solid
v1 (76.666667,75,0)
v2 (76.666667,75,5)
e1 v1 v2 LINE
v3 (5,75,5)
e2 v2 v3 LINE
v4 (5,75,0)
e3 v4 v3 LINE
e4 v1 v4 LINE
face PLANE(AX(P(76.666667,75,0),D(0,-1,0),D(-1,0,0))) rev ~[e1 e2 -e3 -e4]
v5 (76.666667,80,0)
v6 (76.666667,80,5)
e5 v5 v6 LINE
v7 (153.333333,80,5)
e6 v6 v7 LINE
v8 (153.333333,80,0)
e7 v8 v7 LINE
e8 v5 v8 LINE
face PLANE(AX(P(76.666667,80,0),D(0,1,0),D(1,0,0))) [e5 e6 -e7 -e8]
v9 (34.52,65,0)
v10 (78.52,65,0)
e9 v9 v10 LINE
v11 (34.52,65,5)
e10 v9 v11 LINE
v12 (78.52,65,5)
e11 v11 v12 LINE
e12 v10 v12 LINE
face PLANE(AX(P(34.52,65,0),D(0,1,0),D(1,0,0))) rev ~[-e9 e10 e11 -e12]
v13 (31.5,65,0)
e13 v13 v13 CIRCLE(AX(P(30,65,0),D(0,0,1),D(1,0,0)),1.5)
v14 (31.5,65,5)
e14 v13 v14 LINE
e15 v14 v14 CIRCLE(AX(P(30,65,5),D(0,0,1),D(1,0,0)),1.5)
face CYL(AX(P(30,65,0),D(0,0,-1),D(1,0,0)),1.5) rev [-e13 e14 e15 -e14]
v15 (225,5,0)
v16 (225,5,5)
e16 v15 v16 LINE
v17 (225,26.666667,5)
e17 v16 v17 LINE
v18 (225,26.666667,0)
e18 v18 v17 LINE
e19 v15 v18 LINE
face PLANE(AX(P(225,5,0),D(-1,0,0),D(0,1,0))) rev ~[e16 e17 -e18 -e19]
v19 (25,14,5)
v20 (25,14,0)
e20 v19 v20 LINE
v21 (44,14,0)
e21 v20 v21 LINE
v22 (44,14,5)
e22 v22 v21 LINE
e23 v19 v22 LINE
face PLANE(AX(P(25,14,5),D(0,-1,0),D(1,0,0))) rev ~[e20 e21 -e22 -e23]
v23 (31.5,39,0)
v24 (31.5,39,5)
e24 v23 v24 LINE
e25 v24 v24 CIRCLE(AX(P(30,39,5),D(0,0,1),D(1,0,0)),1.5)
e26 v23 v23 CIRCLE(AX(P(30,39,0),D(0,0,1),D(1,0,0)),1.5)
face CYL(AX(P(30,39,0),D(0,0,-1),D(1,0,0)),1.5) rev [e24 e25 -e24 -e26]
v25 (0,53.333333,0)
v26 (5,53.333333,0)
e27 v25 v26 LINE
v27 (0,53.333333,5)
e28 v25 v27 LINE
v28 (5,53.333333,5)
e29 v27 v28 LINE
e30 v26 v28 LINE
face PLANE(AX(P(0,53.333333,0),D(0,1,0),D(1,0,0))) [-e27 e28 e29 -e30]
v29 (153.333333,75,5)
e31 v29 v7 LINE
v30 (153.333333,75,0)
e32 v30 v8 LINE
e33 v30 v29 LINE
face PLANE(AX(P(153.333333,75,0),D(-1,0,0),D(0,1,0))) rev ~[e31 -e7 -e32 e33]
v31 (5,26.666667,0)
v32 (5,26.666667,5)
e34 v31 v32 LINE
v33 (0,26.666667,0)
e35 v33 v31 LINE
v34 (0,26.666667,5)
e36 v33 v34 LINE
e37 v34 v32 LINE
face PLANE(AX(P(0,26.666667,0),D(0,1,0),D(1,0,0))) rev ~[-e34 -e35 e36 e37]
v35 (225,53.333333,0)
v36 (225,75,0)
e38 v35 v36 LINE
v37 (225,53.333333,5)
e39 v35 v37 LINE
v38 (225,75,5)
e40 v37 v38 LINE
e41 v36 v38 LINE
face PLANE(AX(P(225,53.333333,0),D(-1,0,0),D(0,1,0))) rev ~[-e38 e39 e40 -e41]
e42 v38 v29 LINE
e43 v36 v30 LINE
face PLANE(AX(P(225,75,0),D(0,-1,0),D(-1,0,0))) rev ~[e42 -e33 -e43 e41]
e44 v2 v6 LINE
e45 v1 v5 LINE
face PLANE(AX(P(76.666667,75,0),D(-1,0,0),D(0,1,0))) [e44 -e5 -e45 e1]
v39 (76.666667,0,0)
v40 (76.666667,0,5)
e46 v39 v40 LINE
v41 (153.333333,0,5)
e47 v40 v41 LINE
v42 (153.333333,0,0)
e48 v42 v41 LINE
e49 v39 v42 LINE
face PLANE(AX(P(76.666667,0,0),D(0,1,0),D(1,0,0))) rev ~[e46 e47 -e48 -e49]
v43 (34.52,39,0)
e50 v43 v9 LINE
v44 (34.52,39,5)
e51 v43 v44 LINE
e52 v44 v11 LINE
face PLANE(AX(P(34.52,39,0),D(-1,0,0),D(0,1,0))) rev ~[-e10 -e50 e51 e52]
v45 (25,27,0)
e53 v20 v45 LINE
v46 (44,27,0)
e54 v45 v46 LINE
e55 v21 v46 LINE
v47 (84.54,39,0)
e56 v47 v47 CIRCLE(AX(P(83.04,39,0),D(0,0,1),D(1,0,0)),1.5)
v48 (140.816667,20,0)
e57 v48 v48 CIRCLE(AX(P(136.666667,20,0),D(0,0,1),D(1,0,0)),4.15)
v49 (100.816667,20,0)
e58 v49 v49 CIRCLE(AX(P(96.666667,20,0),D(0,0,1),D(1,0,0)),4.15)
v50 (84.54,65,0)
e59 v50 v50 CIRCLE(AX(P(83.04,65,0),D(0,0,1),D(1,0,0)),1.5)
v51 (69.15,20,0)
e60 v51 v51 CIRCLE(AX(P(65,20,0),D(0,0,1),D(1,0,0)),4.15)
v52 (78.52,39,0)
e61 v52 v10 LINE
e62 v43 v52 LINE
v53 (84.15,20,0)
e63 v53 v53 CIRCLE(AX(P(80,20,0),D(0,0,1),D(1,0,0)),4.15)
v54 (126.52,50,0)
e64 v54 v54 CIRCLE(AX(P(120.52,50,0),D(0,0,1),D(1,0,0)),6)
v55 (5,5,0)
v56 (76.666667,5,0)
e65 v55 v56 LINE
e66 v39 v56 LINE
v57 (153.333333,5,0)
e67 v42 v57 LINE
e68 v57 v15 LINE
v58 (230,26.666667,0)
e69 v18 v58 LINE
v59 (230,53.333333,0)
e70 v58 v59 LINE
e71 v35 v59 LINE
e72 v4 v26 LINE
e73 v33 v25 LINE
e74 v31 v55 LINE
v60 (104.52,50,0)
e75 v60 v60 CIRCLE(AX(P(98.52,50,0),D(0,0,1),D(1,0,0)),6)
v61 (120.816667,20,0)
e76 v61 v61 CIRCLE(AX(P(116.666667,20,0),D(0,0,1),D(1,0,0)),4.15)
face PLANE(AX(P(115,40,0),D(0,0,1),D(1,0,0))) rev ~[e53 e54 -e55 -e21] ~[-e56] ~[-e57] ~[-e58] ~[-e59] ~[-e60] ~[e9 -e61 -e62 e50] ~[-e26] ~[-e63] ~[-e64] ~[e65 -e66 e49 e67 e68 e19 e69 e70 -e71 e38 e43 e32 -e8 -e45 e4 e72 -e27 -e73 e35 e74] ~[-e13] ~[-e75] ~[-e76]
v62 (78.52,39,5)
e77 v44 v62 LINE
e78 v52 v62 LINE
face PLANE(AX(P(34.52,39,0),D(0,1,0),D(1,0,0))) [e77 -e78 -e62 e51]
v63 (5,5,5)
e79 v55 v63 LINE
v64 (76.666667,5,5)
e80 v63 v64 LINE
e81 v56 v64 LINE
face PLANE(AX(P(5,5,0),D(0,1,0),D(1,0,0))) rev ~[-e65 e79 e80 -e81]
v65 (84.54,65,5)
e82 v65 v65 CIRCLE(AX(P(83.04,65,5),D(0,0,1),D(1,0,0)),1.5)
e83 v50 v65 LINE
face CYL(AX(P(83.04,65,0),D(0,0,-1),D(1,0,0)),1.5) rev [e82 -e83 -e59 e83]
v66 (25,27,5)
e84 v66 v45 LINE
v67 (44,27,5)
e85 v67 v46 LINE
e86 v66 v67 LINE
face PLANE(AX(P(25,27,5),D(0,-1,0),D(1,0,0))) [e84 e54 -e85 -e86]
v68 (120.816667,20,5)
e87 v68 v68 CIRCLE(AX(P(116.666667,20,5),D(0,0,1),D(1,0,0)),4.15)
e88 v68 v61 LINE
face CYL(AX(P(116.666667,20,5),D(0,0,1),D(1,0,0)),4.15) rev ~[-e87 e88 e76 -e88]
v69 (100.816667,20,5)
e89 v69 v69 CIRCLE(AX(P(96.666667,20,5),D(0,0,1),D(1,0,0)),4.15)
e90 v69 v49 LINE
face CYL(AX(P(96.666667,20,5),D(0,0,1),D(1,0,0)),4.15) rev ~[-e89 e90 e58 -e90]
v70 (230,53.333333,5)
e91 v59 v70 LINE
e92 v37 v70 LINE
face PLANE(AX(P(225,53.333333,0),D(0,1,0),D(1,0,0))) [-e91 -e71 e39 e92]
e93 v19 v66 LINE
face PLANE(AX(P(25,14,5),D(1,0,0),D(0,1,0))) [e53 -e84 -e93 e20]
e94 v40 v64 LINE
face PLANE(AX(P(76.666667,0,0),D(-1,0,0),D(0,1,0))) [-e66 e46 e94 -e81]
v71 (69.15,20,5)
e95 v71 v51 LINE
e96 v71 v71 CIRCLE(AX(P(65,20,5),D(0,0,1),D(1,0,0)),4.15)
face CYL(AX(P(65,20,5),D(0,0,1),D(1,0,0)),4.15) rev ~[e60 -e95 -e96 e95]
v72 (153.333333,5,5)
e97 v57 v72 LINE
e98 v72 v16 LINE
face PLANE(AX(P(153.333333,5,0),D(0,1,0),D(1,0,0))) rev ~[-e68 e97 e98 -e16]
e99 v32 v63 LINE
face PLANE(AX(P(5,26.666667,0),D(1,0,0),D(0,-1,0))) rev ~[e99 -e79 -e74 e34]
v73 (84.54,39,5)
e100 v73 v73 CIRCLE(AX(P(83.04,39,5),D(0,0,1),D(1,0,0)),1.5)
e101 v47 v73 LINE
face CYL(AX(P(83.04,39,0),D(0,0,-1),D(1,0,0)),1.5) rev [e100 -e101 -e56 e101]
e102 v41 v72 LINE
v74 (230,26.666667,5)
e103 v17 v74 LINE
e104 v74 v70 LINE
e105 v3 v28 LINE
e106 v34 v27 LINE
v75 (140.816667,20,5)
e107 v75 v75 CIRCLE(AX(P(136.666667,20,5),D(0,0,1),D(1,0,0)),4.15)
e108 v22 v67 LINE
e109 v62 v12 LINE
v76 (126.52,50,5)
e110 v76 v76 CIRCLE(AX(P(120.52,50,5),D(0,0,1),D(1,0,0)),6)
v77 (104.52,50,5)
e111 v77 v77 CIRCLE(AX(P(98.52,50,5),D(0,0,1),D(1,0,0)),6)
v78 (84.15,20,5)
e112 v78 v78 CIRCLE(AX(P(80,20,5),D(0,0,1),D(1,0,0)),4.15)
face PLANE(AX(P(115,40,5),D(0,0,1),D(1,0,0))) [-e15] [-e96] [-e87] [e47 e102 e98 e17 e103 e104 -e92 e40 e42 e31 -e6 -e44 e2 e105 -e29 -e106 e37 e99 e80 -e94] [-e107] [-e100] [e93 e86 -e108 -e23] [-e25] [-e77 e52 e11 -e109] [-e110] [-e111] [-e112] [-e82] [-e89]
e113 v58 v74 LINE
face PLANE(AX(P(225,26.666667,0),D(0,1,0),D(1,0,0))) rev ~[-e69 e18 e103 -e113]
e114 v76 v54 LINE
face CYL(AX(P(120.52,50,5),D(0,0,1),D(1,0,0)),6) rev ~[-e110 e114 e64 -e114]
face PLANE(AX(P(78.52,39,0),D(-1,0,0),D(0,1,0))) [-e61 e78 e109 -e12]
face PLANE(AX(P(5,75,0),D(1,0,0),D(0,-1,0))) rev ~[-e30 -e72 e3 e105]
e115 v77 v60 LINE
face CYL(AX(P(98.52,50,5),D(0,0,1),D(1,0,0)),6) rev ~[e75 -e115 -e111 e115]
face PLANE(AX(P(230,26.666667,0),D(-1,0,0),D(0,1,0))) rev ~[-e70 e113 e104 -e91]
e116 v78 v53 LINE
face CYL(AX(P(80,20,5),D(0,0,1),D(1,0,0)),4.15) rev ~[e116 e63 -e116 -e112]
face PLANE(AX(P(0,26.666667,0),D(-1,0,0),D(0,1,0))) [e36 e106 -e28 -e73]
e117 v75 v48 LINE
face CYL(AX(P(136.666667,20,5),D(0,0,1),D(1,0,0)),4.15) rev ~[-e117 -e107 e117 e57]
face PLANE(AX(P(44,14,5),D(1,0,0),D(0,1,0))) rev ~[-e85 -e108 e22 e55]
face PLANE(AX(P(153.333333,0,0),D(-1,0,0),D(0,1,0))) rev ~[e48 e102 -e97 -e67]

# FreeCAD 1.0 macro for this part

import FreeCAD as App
import Part
import Sketcher
from FreeCAD import Vector


def add_polygon(sketch, points):
    """Adds a closed chain of lines whose ends are joined by coincident constraints."""
    first, n = sketch.GeometryCount, len(points)
    for a, b in zip(points, points[1:] + points[:1]):
        sketch.addGeometry(Part.LineSegment(App.Vector(*a, 0), App.Vector(*b, 0)), False)
    for i in range(n):
        sketch.addConstraint(Sketcher.Constraint("Coincident", first + i, 2, first + (i + 1) % n, 1))

doc = App.newDocument("Part")
body = doc.addObject("PartDesign::Body", "Body")

# Sketch on XY plane
sketch1 = doc.addObject("Sketcher::SketchObject", "Sketch")
body.addObject(sketch1)
sketch1.AttachmentSupport = (doc.XY_Plane, [""])
sketch1.MapMode = "FlatFace"
add_polygon(sketch1, [(5, 5), (76.7, 5), (76.7, 0), (153.3, 0), (153.3, 5), (225, 5), (225, 26.7), (230, 26.7), (230, 53.3), (225, 53.3), (225, 75), (153.3, 75), (153.3, 80), (76.7, 80), (76.7, 75), (5, 75), (5, 53.3), (0, 53.3), (0, 26.7), (5, 26.7)])  # lines 0-19
sketch1.addGeometry(Part.Circle(Vector(30, 39, 0), Vector(0, 0, 1), 1.5), False)  # 20
sketch1.addGeometry(Part.Circle(Vector(83, 39, 0), Vector(0, 0, 1), 1.5), False)  # 21
sketch1.addGeometry(Part.Circle(Vector(30, 65, 0), Vector(0, 0, 1), 1.5), False)  # 22
add_polygon(sketch1, [(78.5, 39), (34.5, 39), (34.5, 65), (78.5, 65)])  # lines 23-26
sketch1.addGeometry(Part.Circle(Vector(83, 65, 0), Vector(0, 0, 1), 1.5), False)  # 27
sketch1.addConstraint([
    Sketcher.Constraint("Horizontal", 0),
    Sketcher.Constraint("Vertical", 1),
    Sketcher.Constraint("Horizontal", 2),
    Sketcher.Constraint("Vertical", 3),
    Sketcher.Constraint("Horizontal", 4),
    Sketcher.Constraint("Vertical", 5),
    Sketcher.Constraint("Horizontal", 6),
    Sketcher.Constraint("Vertical", 7),
    Sketcher.Constraint("Horizontal", 8),
    Sketcher.Constraint("Vertical", 9),
    Sketcher.Constraint("Horizontal", 10),
    Sketcher.Constraint("Vertical", 11),
    Sketcher.Constraint("Horizontal", 12),
    Sketcher.Constraint("Vertical", 13),
    Sketcher.Constraint("Horizontal", 14),
    Sketcher.Constraint("Vertical", 15),
    Sketcher.Constraint("Horizontal", 16),
    Sketcher.Constraint("Vertical", 17),
    Sketcher.Constraint("Horizontal", 18),
    Sketcher.Constraint("Vertical", 19),
    Sketcher.Constraint("Horizontal", 23),
    Sketcher.Constraint("Vertical", 24),
    Sketcher.Constraint("Horizontal", 25),
    Sketcher.Constraint("Vertical", 26),
    Sketcher.Constraint("Equal", 20, 21),
    Sketcher.Constraint("Equal", 21, 22),
    Sketcher.Constraint("Equal", 22, 27),
    Sketcher.Constraint("PointOnObject", 1, 2, -1),
    Sketcher.Constraint("PointOnObject", 16, 2, -2),
    Sketcher.Constraint("Horizontal", 20, 3, 21, 3),
    Sketcher.Constraint("Horizontal", 22, 3, 27, 3),
    Sketcher.Constraint("Horizontal", 0, 2, 3, 2),
    Sketcher.Constraint("Horizontal", 10, 2, 13, 2),
    Sketcher.Constraint("Horizontal", 8, 2, 15, 2),
    Sketcher.Constraint("Horizontal", 6, 2, 17, 2),
    Sketcher.Constraint("Horizontal", 21, 3, 23, 2),
    Sketcher.Constraint("Horizontal", 27, 3, 24, 2),
    Sketcher.Constraint("Vertical", 20, 3, 22, 3),
    Sketcher.Constraint("Vertical", 21, 3, 27, 3),
    Sketcher.Constraint("Vertical", 5, 2, 8, 2),
    Sketcher.Constraint("Vertical", 3, 2, 10, 2),
    Sketcher.Constraint("Vertical", 1, 2, 12, 2),
    Sketcher.Constraint("Vertical", 15, 2, 18, 2),
    Sketcher.Constraint("Equal", 0, 4),
    Sketcher.Constraint("Equal", 8, 16),
    Sketcher.Constraint("Equal", 18, 1),
    Sketcher.Constraint("Equal", 5, 9),
    Sketcher.Constraint("Equal", 3, 11),
    Sketcher.Constraint("Diameter", 20, 3.0),
    Sketcher.Constraint("DistanceX", 6, 1, 6, 2, 5.0),
    Sketcher.Constraint("DistanceX", 23, 2, 23, 1, 44.0),
    Sketcher.Constraint("DistanceY", 24, 1, 24, 2, 26.0),
    Sketcher.Constraint("DistanceX", -1, 1, 20, 3, 30.0),
    Sketcher.Constraint("DistanceY", -1, 1, 20, 3, 39.0),
    Sketcher.Constraint("DistanceX", -1, 1, 4, 2, 225.0),
    Sketcher.Constraint("DistanceY", -1, 1, 9, 2, 75.0),
    Sketcher.Constraint("DistanceX", -1, 1, 21, 3, 83.04),
    Sketcher.Constraint("DistanceX", -1, 1, 23, 2, 34.52),
    Sketcher.Constraint("DistanceX", 0, 1, 0, 2, 71.666667),
    Sketcher.Constraint("DistanceY", 5, 1, 5, 2, 21.666667),
])
pad1 = doc.addObject("PartDesign::Pad", "Pad")
body.addObject(pad1)
pad1.Profile = sketch1
pad1.Length = 5

# Sketch on XY plane
sketch2 = doc.addObject("Sketcher::SketchObject", "Sketch001")
body.addObject(sketch2)
sketch2.AttachmentSupport = (doc.XY_Plane, [""])
sketch2.MapMode = "FlatFace"
sketch2.AttachmentOffset = App.Placement(Vector(0, 0, 5), App.Rotation())
sketch2.addGeometry([
    Part.Circle(Vector(96.7, 20, 0), Vector(0, 0, 1), 4.2),
    Part.Circle(Vector(116.7, 20, 0), Vector(0, 0, 1), 4.2),
    Part.Circle(Vector(136.7, 20, 0), Vector(0, 0, 1), 4.2),
], False)
sketch2.addConstraint([
    Sketcher.Constraint("Equal", 0, 1),
    Sketcher.Constraint("Equal", 1, 2),
    Sketcher.Constraint("Horizontal", 0, 3, 1, 3),
    Sketcher.Constraint("Horizontal", 1, 3, 2, 3),
    Sketcher.Constraint("Diameter", 0, 8.3),
    Sketcher.Constraint("DistanceY", -1, 1, 0, 3, 20.0),
    Sketcher.Constraint("DistanceX", 0, 3, 1, 3, 20.0),
    Sketcher.Constraint("DistanceX", 1, 3, 2, 3, 20.0),
    Sketcher.Constraint("DistanceX", -1, 1, 0, 3, 96.666667),
])
pocket1 = doc.addObject("PartDesign::Pocket", "Pocket")
body.addObject(pocket1)
pocket1.Profile = sketch2
pocket1.Length = 10

# Sketch on XY plane
sketch3 = doc.addObject("Sketcher::SketchObject", "Sketch002")
body.addObject(sketch3)
sketch3.AttachmentSupport = (doc.XY_Plane, [""])
sketch3.MapMode = "FlatFace"
sketch3.AttachmentOffset = App.Placement(Vector(0, 0, 5), App.Rotation())
add_polygon(sketch3, [(25, 27), (25, 14), (44, 14), (44, 27)])  # lines 0-3
sketch3.addConstraint([
    Sketcher.Constraint("Vertical", 0),
    Sketcher.Constraint("Horizontal", 1),
    Sketcher.Constraint("Vertical", 2),
    Sketcher.Constraint("Horizontal", 3),
    Sketcher.Constraint("DistanceX", 1, 1, 1, 2, 19.0),
    Sketcher.Constraint("DistanceY", 0, 2, 0, 1, 13.0),
    Sketcher.Constraint("DistanceX", -1, 1, 0, 2, 25.0),
    Sketcher.Constraint("DistanceY", -1, 1, 0, 2, 14.0),
])
pocket2 = doc.addObject("PartDesign::Pocket", "Pocket001")
body.addObject(pocket2)
pocket2.Profile = sketch3
pocket2.Length = 10

# Sketch on XY plane
sketch4 = doc.addObject("Sketcher::SketchObject", "Sketch003")
body.addObject(sketch4)
sketch4.AttachmentSupport = (doc.XY_Plane, [""])
sketch4.MapMode = "FlatFace"
sketch4.AttachmentOffset = App.Placement(Vector(0, 0, 5), App.Rotation())
sketch4.addGeometry([
    Part.Circle(Vector(65, 20, 0), Vector(0, 0, 1), 4.2),
    Part.Circle(Vector(80, 20, 0), Vector(0, 0, 1), 4.2),
], False)
sketch4.addConstraint([
    Sketcher.Constraint("Equal", 0, 1),
    Sketcher.Constraint("Horizontal", 0, 3, 1, 3),
    Sketcher.Constraint("Diameter", 0, 8.3),
    Sketcher.Constraint("DistanceX", -1, 1, 0, 3, 65.0),
    Sketcher.Constraint("DistanceY", -1, 1, 0, 3, 20.0),
    Sketcher.Constraint("DistanceX", -1, 1, 1, 3, 80.0),
])
pocket3 = doc.addObject("PartDesign::Pocket", "Pocket002")
body.addObject(pocket3)
pocket3.Profile = sketch4
pocket3.Length = 10

# Sketch on XY plane
sketch5 = doc.addObject("Sketcher::SketchObject", "Sketch004")
body.addObject(sketch5)
sketch5.AttachmentSupport = (doc.XY_Plane, [""])
sketch5.MapMode = "FlatFace"
sketch5.AttachmentOffset = App.Placement(Vector(0, 0, 5), App.Rotation())
sketch5.addGeometry([
    Part.Circle(Vector(99, 50, 0), Vector(0, 0, 1), 6),
    Part.Circle(Vector(121, 50, 0), Vector(0, 0, 1), 6),
], False)
sketch5.addConstraint([
    Sketcher.Constraint("Equal", 0, 1),
    Sketcher.Constraint("Horizontal", 0, 3, 1, 3),
    Sketcher.Constraint("Diameter", 0, 12.0),
    Sketcher.Constraint("DistanceY", -1, 1, 0, 3, 50.0),
    Sketcher.Constraint("DistanceX", 0, 3, 1, 3, 22.0),
    Sketcher.Constraint("DistanceX", -1, 1, 0, 3, 98.52),
])
pocket4 = doc.addObject("PartDesign::Pocket", "Pocket003")
body.addObject(pocket4)
pocket4.Profile = sketch5
pocket4.Length = 10

doc.recompute()
